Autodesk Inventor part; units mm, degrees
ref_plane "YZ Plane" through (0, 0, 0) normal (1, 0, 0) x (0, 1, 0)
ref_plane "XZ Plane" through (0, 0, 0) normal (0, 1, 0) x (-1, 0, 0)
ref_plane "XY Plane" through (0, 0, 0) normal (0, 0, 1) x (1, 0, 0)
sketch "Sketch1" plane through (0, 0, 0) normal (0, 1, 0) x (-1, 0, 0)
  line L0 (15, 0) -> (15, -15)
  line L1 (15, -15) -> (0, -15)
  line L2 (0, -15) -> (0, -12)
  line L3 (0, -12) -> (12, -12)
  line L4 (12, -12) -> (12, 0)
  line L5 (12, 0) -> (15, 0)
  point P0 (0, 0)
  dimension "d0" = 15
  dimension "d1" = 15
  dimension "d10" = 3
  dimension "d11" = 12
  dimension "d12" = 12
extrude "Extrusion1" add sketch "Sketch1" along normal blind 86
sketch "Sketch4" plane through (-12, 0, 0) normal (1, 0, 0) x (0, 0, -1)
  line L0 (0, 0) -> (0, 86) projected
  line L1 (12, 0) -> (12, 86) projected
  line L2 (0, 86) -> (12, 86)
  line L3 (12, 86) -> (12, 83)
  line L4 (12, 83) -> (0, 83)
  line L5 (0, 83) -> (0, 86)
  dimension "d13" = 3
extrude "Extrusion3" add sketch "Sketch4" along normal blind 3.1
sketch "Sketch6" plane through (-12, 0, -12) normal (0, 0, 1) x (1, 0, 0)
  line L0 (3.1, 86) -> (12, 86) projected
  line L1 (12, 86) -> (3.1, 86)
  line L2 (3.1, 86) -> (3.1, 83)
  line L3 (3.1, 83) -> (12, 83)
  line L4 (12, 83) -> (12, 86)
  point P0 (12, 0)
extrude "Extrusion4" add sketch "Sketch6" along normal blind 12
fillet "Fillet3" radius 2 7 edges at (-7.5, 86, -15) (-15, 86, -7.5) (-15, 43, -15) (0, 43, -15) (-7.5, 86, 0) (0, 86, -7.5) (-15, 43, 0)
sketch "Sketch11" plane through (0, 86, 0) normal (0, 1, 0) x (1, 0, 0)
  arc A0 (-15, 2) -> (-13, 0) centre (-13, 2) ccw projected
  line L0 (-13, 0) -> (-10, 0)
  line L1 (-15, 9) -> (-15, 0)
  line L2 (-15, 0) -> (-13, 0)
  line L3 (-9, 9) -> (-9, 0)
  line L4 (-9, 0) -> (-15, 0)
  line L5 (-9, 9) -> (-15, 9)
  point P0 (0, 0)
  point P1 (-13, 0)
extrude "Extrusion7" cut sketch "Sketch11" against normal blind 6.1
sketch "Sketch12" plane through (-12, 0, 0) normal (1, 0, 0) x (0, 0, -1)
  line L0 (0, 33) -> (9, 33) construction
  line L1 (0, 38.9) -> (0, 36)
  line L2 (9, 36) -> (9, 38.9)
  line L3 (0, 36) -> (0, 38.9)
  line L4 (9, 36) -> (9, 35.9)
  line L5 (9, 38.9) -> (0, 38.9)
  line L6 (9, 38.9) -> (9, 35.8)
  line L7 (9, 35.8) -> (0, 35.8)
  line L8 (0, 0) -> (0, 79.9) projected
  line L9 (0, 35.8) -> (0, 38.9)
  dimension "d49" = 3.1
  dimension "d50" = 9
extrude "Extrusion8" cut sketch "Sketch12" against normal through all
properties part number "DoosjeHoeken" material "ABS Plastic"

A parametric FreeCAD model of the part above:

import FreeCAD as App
import Part
import Sketcher
from FreeCAD import Vector


def edges_at(feature, points):
    """Names of the edges that pass closest to the given points."""
    edges = feature.Shape.Edges
    near = lambda p: min(range(len(edges)), key=lambda i: edges[i].distToShape(Part.Vertex(*p))[0])
    return sorted({f"Edge{near(p) + 1}" for p in points})

doc = App.newDocument("Part")
body = doc.addObject("PartDesign::Body", "Body")

# Sketch on XZ plane
sketch1 = body.newObject("Sketcher::SketchObject", "Sketch")
sketch1.AttachmentSupport = (doc.getObject("XZ_Plane"), [""])
sketch1.MapMode = "FlatFace"
sketch1.addGeometry([
    Part.LineSegment(Vector(-15, -15, 0), Vector(-15, 0, 0)),  # 0
    Part.LineSegment(Vector(-15, 0, 0), Vector(-12, 0, 0)),  # 1
    Part.LineSegment(Vector(-12, 0, 0), Vector(-12, -12, 0)),  # 2
    Part.LineSegment(Vector(-12, -12, 0), Vector(0, -12, 0)),  # 3
    Part.LineSegment(Vector(0, -12, 0), Vector(0, -15, 0)),  # 4
    Part.LineSegment(Vector(0, -15, 0), Vector(-15, -15, 0)),  # 5
], False)
sketch1.addConstraint([
    Sketcher.Constraint("Coincident", 0, 2, 1, 1),
    Sketcher.Constraint("Coincident", 1, 2, 2, 1),
    Sketcher.Constraint("Coincident", 2, 2, 3, 1),
    Sketcher.Constraint("Coincident", 3, 2, 4, 1),
    Sketcher.Constraint("Coincident", 4, 2, 5, 1),
    Sketcher.Constraint("Coincident", 5, 2, 0, 1),
    Sketcher.Constraint("Vertical", 0),
    Sketcher.Constraint("Horizontal", 1),
    Sketcher.Constraint("Vertical", 2),
    Sketcher.Constraint("Horizontal", 3),
    Sketcher.Constraint("Vertical", 4),
    Sketcher.Constraint("Horizontal", 5),
    Sketcher.Constraint("PointOnObject", 0, 2, -1),
    Sketcher.Constraint("PointOnObject", 3, 2, -2),
    Sketcher.Constraint("Equal", 5, 0),
    Sketcher.Constraint("Equal", 3, 2),
    Sketcher.Constraint("DistanceX", 1, 1, 1, 2, 3.0),
    Sketcher.Constraint("DistanceX", 3, 1, 3, 2, 12.0),
])
pad1 = body.newObject("PartDesign::Pad", "Pad")
pad1.Profile = sketch1
pad1.Length = 86
pad1.Reversed = True

# Sketch on YZ plane
sketch2 = body.newObject("Sketcher::SketchObject", "Sketch001")
sketch2.AttachmentSupport = (doc.getObject("YZ_Plane"), [""])
sketch2.MapMode = "FlatFace"
sketch2.AttachmentOffset = App.Placement(Vector(0, 0, -12), App.Rotation())
sketch2.addGeometry([
    Part.LineSegment(Vector(86, 0, 0), Vector(83, 0, 0)),
    Part.LineSegment(Vector(83, 0, 0), Vector(83, -12, 0)),
    Part.LineSegment(Vector(83, -12, 0), Vector(86, -12, 0)),
    Part.LineSegment(Vector(86, -12, 0), Vector(86, 0, 0)),
], False)
sketch2.addConstraint([
    Sketcher.Constraint("Coincident", 0, 2, 1, 1),
    Sketcher.Constraint("Coincident", 1, 2, 2, 1),
    Sketcher.Constraint("Coincident", 2, 2, 3, 1),
    Sketcher.Constraint("Coincident", 3, 2, 0, 1),
    Sketcher.Constraint("Horizontal", 0),
    Sketcher.Constraint("Vertical", 1),
    Sketcher.Constraint("Horizontal", 2),
    Sketcher.Constraint("Vertical", 3),
    Sketcher.Constraint("PointOnObject", 0, 2, -1),
    Sketcher.Constraint("DistanceX", 0, 2, 0, 1, 3.0),
    Sketcher.Constraint("DistanceY", 1, 2, 1, 1, 12.0),
    Sketcher.Constraint("DistanceX", -1, 1, 0, 2, 83.0),
])
pad2 = body.newObject("PartDesign::Pad", "Pad001")
pad2.Profile = sketch2
pad2.Length = 3.1

# Sketch on XY plane
sketch3 = body.newObject("Sketcher::SketchObject", "Sketch002")
sketch3.AttachmentSupport = (doc.getObject("XY_Plane"), [""])
sketch3.MapMode = "FlatFace"
sketch3.AttachmentOffset = App.Placement(Vector(0, 0, -12), App.Rotation())
sketch3.addGeometry([
    Part.LineSegment(Vector(0, 86, 0), Vector(-8.9, 86, 0)),
    Part.LineSegment(Vector(-8.9, 86, 0), Vector(-8.9, 83, 0)),
    Part.LineSegment(Vector(-8.9, 83, 0), Vector(0, 83, 0)),
    Part.LineSegment(Vector(0, 83, 0), Vector(0, 86, 0)),
], False)
sketch3.addConstraint([
    Sketcher.Constraint("Coincident", 0, 2, 1, 1),
    Sketcher.Constraint("Coincident", 1, 2, 2, 1),
    Sketcher.Constraint("Coincident", 2, 2, 3, 1),
    Sketcher.Constraint("Coincident", 3, 2, 0, 1),
    Sketcher.Constraint("Horizontal", 0),
    Sketcher.Constraint("Vertical", 1),
    Sketcher.Constraint("Horizontal", 2),
    Sketcher.Constraint("Vertical", 3),
    Sketcher.Constraint("PointOnObject", 2, 2, -2),
    Sketcher.Constraint("DistanceY", 1, 2, 1, 1, 3.0),
    Sketcher.Constraint("DistanceX", 0, 2, 0, 1, 8.9),
    Sketcher.Constraint("DistanceY", -1, 1, 0, 2, 86.0),
])
pad3 = body.newObject("PartDesign::Pad", "Pad002")
pad3.Profile = sketch3
pad3.Length = 12
doc.recompute()

fillet = body.newObject("PartDesign::Fillet", "Fillet")
fillet.Base = (pad3, edges_at(pad3, [
    (-7.5, 86, -15),
    (-15, 86, -7.5),
    (-15, 43, -15),
    (0, 43, -15),
    (-7.5, 86, 0),
    (0, 86, -7.5),
    (-15, 43, 0),
]))
fillet.Radius = 2

# Sketch on XZ plane
sketch4 = body.newObject("Sketcher::SketchObject", "Sketch003")
sketch4.AttachmentSupport = (doc.getObject("XZ_Plane"), [""])
sketch4.MapMode = "FlatFace"
sketch4.AttachmentOffset = App.Placement(Vector(0, 0, -86), App.Rotation())
sketch4.addGeometry([
    Part.LineSegment(Vector(-15, -9, 0), Vector(-15, 0, 0)),
    Part.LineSegment(Vector(-15, 0, 0), Vector(-9, 0, 0)),
    Part.LineSegment(Vector(-9, 0, 0), Vector(-9, -9, 0)),
    Part.LineSegment(Vector(-9, -9, 0), Vector(-15, -9, 0)),
], False)
sketch4.addConstraint([
    Sketcher.Constraint("Coincident", 0, 2, 1, 1),
    Sketcher.Constraint("Coincident", 1, 2, 2, 1),
    Sketcher.Constraint("Coincident", 2, 2, 3, 1),
    Sketcher.Constraint("Coincident", 3, 2, 0, 1),
    Sketcher.Constraint("Vertical", 0),
    Sketcher.Constraint("Horizontal", 1),
    Sketcher.Constraint("Vertical", 2),
    Sketcher.Constraint("Horizontal", 3),
    Sketcher.Constraint("PointOnObject", 0, 2, -1),
    Sketcher.Constraint("DistanceX", 1, 1, 1, 2, 6.0),
    Sketcher.Constraint("DistanceY", 0, 1, 0, 2, 9.0),
    Sketcher.Constraint("DistanceX", 0, 2, -1, 1, 15.0),
])
pocket1 = body.newObject("PartDesign::Pocket", "Pocket")
pocket1.Profile = sketch4
pocket1.Length = 6.1
pocket1.Reversed = True

# Sketch on YZ plane
sketch5 = body.newObject("Sketcher::SketchObject", "Sketch004")
sketch5.AttachmentSupport = (doc.getObject("YZ_Plane"), [""])
sketch5.MapMode = "FlatFace"
sketch5.AttachmentOffset = App.Placement(Vector(0, 0, -12), App.Rotation())
sketch5.addGeometry([
    Part.LineSegment(Vector(38.9, -9, 0), Vector(38.9, 0, 0)),
    Part.LineSegment(Vector(38.9, 0, 0), Vector(35.8, 0, 0)),
    Part.LineSegment(Vector(35.8, 0, 0), Vector(35.8, -9, 0)),
    Part.LineSegment(Vector(35.8, -9, 0), Vector(38.9, -9, 0)),
], False)
sketch5.addConstraint([
    Sketcher.Constraint("Coincident", 0, 2, 1, 1),
    Sketcher.Constraint("Coincident", 1, 2, 2, 1),
    Sketcher.Constraint("Coincident", 2, 2, 3, 1),
    Sketcher.Constraint("Coincident", 3, 2, 0, 1),
    Sketcher.Constraint("Vertical", 0),
    Sketcher.Constraint("Horizontal", 1),
    Sketcher.Constraint("Vertical", 2),
    Sketcher.Constraint("Horizontal", 3),
    Sketcher.Constraint("PointOnObject", 0, 2, -1),
    Sketcher.Constraint("DistanceY", 0, 1, 0, 2, 9.0),
    Sketcher.Constraint("DistanceX", 1, 2, 1, 1, 3.1),
    Sketcher.Constraint("DistanceX", -1, 1, 0, 2, 38.9),
])
pocket2 = body.newObject("PartDesign::Pocket", "Pocket001")
pocket2.Profile = sketch5
pocket2.Type = "ThroughAll"

doc.recompute()
